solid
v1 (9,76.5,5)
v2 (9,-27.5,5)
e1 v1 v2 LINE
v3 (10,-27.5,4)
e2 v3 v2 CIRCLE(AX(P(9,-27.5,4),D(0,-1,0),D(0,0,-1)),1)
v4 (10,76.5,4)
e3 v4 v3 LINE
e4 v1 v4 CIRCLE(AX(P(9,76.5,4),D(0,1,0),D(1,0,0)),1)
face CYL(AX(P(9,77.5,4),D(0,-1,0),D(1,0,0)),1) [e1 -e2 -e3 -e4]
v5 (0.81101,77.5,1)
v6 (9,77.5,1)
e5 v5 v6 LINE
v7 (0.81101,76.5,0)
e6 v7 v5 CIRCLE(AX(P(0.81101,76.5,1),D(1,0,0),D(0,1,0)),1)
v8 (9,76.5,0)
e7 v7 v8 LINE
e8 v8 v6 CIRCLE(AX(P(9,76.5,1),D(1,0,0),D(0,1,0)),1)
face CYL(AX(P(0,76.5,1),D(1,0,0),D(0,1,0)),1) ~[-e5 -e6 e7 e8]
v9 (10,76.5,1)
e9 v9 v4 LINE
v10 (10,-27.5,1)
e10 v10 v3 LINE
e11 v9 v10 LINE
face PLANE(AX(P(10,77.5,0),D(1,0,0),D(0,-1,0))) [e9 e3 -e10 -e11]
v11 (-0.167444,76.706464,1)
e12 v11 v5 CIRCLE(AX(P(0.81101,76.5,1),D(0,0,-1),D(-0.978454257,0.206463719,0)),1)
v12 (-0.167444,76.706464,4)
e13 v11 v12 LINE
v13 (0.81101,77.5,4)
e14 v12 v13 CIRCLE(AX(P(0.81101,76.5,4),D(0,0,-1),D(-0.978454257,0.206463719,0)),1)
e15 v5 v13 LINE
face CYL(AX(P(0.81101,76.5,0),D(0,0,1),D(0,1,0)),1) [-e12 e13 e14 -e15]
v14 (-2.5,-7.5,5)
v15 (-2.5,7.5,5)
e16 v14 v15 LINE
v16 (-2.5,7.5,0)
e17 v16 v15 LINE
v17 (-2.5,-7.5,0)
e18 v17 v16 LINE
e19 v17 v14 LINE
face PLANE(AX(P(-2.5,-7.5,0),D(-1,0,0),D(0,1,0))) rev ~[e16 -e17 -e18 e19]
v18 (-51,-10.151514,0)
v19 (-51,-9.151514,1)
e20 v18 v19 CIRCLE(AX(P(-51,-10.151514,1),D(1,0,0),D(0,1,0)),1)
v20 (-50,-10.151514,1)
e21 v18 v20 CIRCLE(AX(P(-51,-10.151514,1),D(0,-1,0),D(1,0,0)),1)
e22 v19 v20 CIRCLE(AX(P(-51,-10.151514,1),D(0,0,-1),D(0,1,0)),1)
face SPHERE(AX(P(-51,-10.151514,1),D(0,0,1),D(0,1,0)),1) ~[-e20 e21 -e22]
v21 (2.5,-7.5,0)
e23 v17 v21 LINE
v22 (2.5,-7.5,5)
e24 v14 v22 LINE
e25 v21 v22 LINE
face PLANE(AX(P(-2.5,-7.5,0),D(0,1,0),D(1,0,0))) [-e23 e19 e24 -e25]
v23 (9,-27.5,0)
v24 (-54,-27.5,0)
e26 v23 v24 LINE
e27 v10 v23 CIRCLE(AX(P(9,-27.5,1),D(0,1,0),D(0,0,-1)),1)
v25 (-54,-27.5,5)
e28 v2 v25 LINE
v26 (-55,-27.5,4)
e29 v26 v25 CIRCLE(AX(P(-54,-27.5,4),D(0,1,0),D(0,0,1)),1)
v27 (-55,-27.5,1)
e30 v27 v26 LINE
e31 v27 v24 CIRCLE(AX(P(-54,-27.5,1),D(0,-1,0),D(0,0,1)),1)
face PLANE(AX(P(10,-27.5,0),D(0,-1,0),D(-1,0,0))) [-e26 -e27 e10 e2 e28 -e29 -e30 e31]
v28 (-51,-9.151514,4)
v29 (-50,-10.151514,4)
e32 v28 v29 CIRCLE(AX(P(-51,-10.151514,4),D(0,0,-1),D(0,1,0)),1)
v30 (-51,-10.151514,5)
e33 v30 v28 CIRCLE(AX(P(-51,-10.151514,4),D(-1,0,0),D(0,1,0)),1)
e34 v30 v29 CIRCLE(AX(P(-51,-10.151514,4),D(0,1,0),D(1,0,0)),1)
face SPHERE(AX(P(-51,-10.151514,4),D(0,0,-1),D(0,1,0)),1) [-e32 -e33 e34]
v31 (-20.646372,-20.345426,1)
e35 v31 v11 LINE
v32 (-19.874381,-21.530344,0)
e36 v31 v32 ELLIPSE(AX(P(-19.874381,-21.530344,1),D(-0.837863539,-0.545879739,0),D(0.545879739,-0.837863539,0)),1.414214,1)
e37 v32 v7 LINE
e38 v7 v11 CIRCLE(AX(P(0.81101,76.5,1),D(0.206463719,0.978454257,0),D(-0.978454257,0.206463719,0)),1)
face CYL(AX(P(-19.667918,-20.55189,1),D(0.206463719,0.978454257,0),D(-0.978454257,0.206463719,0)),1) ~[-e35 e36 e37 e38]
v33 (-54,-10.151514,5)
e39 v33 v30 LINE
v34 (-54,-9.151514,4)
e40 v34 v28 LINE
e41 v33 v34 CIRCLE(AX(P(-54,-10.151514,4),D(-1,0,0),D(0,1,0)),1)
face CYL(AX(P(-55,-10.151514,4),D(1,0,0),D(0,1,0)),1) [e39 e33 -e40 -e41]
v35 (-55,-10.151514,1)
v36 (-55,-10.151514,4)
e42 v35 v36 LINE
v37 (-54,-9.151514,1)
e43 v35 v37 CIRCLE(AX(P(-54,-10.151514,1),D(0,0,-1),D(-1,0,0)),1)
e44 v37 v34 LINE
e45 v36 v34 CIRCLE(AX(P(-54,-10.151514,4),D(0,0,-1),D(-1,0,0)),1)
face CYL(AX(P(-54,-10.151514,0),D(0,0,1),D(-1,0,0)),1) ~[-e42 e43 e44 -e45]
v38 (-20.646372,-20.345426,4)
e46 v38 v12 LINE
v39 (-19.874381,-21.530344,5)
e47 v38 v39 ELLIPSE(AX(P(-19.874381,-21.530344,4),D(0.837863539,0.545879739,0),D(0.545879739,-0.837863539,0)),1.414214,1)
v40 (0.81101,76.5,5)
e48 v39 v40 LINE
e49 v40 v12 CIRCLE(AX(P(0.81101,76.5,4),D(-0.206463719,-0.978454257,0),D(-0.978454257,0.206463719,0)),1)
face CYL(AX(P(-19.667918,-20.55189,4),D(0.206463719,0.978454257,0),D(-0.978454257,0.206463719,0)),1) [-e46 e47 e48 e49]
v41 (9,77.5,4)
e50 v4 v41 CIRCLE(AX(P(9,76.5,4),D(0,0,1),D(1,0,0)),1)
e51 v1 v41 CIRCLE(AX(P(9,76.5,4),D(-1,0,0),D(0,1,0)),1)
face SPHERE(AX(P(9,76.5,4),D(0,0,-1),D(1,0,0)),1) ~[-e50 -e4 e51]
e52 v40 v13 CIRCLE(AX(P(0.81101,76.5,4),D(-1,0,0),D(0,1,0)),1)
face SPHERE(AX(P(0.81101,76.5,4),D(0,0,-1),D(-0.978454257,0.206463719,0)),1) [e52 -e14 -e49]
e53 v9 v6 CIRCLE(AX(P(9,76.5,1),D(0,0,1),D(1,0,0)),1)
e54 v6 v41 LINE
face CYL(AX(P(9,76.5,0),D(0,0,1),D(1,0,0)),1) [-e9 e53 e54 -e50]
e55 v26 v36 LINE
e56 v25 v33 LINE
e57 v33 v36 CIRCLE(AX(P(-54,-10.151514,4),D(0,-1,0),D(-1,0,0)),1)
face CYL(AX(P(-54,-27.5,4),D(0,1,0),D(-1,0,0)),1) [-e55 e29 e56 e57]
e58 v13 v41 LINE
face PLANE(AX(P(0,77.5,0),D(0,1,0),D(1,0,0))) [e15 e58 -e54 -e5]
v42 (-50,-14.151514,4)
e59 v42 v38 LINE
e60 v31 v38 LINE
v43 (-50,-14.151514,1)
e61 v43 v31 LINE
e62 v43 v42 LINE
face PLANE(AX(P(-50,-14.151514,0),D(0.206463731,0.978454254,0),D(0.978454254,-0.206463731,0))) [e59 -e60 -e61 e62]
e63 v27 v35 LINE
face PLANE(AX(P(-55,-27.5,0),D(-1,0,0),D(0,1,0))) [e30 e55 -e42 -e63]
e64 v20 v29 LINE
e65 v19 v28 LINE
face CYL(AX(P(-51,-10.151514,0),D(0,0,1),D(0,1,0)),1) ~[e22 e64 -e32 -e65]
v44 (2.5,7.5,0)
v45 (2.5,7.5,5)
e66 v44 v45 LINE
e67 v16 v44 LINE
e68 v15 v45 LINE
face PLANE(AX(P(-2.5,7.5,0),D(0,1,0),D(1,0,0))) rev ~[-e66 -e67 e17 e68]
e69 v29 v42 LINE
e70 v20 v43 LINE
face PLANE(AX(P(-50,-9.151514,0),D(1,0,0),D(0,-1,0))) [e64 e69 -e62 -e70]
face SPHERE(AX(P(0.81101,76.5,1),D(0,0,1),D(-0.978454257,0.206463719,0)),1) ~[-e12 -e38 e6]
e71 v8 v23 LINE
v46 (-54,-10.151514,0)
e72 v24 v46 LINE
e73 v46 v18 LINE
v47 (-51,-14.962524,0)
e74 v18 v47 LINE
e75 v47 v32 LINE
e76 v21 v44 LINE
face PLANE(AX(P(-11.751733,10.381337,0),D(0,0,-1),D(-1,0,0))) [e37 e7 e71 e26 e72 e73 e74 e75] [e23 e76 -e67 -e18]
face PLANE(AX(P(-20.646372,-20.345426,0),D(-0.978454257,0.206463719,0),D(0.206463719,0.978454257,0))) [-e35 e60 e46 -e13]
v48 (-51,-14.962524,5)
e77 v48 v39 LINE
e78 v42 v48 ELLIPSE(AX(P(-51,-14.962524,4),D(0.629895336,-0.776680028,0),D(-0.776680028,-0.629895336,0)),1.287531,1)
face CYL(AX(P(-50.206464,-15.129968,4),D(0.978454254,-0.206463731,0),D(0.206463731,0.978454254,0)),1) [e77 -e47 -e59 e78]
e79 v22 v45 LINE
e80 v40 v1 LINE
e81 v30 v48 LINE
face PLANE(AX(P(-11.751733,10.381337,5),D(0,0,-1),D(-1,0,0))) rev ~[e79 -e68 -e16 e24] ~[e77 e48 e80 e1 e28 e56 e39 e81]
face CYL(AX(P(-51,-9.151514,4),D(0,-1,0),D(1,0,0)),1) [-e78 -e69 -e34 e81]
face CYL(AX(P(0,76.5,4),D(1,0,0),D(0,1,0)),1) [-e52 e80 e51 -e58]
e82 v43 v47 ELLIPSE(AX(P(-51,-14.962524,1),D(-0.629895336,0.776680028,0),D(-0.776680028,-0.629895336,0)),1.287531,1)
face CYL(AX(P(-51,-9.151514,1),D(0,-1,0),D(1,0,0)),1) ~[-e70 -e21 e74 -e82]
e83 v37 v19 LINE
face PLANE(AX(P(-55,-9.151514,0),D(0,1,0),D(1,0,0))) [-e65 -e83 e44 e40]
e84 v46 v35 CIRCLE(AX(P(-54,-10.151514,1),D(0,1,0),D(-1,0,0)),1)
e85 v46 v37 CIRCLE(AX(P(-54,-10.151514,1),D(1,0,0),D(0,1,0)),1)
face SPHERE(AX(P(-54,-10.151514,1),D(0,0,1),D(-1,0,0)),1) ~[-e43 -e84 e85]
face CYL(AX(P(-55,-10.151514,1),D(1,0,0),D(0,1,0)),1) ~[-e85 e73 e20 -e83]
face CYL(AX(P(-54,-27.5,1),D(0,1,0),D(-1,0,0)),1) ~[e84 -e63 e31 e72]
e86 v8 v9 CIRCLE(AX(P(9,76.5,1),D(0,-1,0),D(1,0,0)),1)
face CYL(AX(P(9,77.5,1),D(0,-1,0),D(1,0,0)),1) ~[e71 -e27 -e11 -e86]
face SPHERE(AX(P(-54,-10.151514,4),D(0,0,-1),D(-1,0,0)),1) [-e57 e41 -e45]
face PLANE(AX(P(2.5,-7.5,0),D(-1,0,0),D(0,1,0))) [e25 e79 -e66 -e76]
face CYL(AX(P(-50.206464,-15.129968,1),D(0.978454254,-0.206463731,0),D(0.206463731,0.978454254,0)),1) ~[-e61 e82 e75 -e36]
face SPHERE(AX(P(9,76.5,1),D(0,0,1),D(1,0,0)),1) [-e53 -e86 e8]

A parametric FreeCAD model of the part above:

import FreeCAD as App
import Part
import Sketcher
Q = App.Units.Quantity


def edges_at(feature, points):
    """Names of the edges that pass closest to the given points."""
    edges = feature.Shape.Edges
    near = lambda p: min(range(len(edges)), key=lambda i: edges[i].distToShape(Part.Vertex(*p))[0])
    return sorted({f"Edge{near(p) + 1}" for p in points})


def add_polygon(sketch, points):
    """Adds a closed chain of lines whose ends are joined by coincident constraints."""
    first, n = sketch.GeometryCount, len(points)
    for a, b in zip(points, points[1:] + points[:1]):
        sketch.addGeometry(Part.LineSegment(App.Vector(*a, 0), App.Vector(*b, 0)), False)
    for i in range(n):
        sketch.addConstraint(Sketcher.Constraint("Coincident", first + i, 2, first + (i + 1) % n, 1))

doc = App.newDocument("Part")
body = doc.addObject("PartDesign::Body", "Body")

# Sketch on XY plane
sketch1 = body.newObject("Sketcher::SketchObject", "Sketch")
sketch1.AttachmentSupport = (doc.getObject("XY_Plane"), [""])
sketch1.MapMode = "FlatFace"
add_polygon(sketch1, [(10, -28), (10, 78), (0, 78), (-21, -20), (-50, -14), (-50, -9), (-55, -9), (-55, -28)])  # lines 0-7
add_polygon(sketch1, [(-2, -8), (-2, 8), (2, 8), (2, -8)])  # lines 8-11
sketch1.addConstraint([
    Sketcher.Constraint("Vertical", 0),
    Sketcher.Constraint("Horizontal", 1),
    Sketcher.Constraint("Vertical", 4),
    Sketcher.Constraint("Horizontal", 5),
    Sketcher.Constraint("Vertical", 6),
    Sketcher.Constraint("Horizontal", 7),
    Sketcher.Constraint("Vertical", 8),
    Sketcher.Constraint("Horizontal", 9),
    Sketcher.Constraint("Vertical", 10),
    Sketcher.Constraint("Horizontal", 11),
    Sketcher.Constraint("Symmetric", 8, 2, 10, 2, -1, 1),
    Sketcher.Constraint("PointOnObject", 1, 2, -2),
    Sketcher.Constraint("Perpendicular", 2, 3),
    Sketcher.Constraint("Equal", 5, 9),
    Sketcher.Constraint("Equal", 11, 4),
    Sketcher.Constraint("DistanceX", 1, 2, 1, 1, Q("10 mm")),
    Sketcher.Constraint("DistanceX", 5, 2, 5, 1, Q("5 mm")),
    Sketcher.Constraint("DistanceX", 7, 1, 7, 2, Q("65 mm")),
    Sketcher.Constraint("DistanceY", 0, 1, 0, 2, Q("105 mm")),
    Sketcher.Constraint("DistanceY", 8, 1, 8, 2, Q("15 mm")),
    Sketcher.Constraint("Distance", 2, Q("100 mm")),
    Sketcher.Constraint("Distance", 3, Q("30 mm")),
    Sketcher.Constraint("DistanceY", 7, 2, 8, 2, Q("35 mm")),
])
pad1 = body.newObject("PartDesign::Pad", "Pad")
pad1.Profile = sketch1
pad1.Length = 5
doc.recompute()

fillet = body.newObject("PartDesign::Fillet", "Fillet")
fillet.Base = (pad1, edges_at(pad1, [
    (10, 77.5, 2.5),
    (10, 25, 0),
    (10, 25, 5),
    (-55, -9.152, 2.5),
    (-55, -18.326, 0),
    (-55, -18.326, 5),
    (-50, -9.152, 2.5),
    (-52.5, -9.152, 0),
    (-52.5, -9.152, 5),
    (-50, -11.652, 0),
    (-50, -11.652, 5),
    (-35.323, -17.248, 0),
    (-35.323, -17.248, 5),
    (0, 77.5, 2.5),
    (-10.323, 28.577, 0),
    (-10.323, 28.577, 5),
    (5, 77.5, 0),
    (5, 77.5, 5),
]))
fillet.Radius = 1

doc.recompute()
